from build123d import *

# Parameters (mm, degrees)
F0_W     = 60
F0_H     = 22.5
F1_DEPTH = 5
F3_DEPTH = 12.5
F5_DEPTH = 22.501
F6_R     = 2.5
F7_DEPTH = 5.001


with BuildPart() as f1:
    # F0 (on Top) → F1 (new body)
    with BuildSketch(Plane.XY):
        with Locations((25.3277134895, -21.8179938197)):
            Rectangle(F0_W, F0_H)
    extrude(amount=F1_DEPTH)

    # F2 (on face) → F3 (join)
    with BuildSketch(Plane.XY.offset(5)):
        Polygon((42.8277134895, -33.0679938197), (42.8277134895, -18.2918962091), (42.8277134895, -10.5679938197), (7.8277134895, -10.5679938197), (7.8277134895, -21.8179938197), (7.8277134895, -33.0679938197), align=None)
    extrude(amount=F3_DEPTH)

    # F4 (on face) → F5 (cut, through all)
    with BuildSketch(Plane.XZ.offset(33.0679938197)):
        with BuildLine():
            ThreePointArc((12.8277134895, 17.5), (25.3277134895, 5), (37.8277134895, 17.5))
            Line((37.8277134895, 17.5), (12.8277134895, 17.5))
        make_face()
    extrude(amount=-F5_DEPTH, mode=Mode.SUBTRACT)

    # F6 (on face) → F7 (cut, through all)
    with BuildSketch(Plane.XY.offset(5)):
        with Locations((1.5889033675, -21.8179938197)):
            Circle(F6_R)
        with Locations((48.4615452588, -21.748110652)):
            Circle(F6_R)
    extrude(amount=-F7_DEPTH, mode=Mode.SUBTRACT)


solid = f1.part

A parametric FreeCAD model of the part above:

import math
import FreeCAD as App
import Part
import Sketcher
Q = App.Units.Quantity

doc = App.newDocument("Part")
body = doc.addObject("PartDesign::Body", "Body")

# Sketch on XY plane
sketch1 = doc.addObject("Sketcher::SketchObject", "Sketch")
body.addObject(sketch1)
sketch1.AttachmentSupport = (doc.XY_Plane, [""])
sketch1.MapMode = "FlatFace"
sketch1.addGeometry(Part.LineSegment(App.Vector(-5, -11, 0), App.Vector(-5, -33, 0)), False)
sketch1.addGeometry(Part.LineSegment(App.Vector(-5, -33, 0), App.Vector(55, -33, 0)), False)
sketch1.addGeometry(Part.LineSegment(App.Vector(55, -33, 0), App.Vector(55, -11, 0)), False)
sketch1.addGeometry(Part.LineSegment(App.Vector(55, -11, 0), App.Vector(-5, -11, 0)), False)
sketch1.addConstraint(Sketcher.Constraint("Coincident", 0, 2, 1, 1))
sketch1.addConstraint(Sketcher.Constraint("Coincident", 1, 2, 2, 1))
sketch1.addConstraint(Sketcher.Constraint("Coincident", 2, 2, 3, 1))
sketch1.addConstraint(Sketcher.Constraint("Coincident", 3, 2, 0, 1))
sketch1.addConstraint(Sketcher.Constraint("Vertical", 0))
sketch1.addConstraint(Sketcher.Constraint("Horizontal", 1))
sketch1.addConstraint(Sketcher.Constraint("Vertical", 2))
sketch1.addConstraint(Sketcher.Constraint("Horizontal", 3))
sketch1.addConstraint(Sketcher.Constraint("DistanceX", 1, 1, 1, 2, Q("60 mm")))
sketch1.addConstraint(Sketcher.Constraint("DistanceY", 0, 2, 0, 1, Q("22.5 mm")))
sketch1.addConstraint(Sketcher.Constraint("DistanceX", 0, 2, -1, 1, Q("4.672287 mm")))
sketch1.addConstraint(Sketcher.Constraint("DistanceY", 0, 2, -1, 1, Q("33.067994 mm")))
pad1 = doc.addObject("PartDesign::Pad", "Pad")
body.addObject(pad1)
pad1.Profile = sketch1
pad1.Length = 5

# Sketch on XY plane
sketch2 = doc.addObject("Sketcher::SketchObject", "Sketch001")
body.addObject(sketch2)
sketch2.AttachmentSupport = (doc.XY_Plane, [""])
sketch2.MapMode = "FlatFace"
sketch2.AttachmentOffset = App.Placement(App.Vector(0, 0, 5), App.Rotation())
sketch2.addGeometry(Part.LineSegment(App.Vector(43, -33, 0), App.Vector(43, -11, 0)), False)
sketch2.addGeometry(Part.LineSegment(App.Vector(43, -11, 0), App.Vector(8, -11, 0)), False)
sketch2.addGeometry(Part.LineSegment(App.Vector(8, -11, 0), App.Vector(8, -33, 0)), False)
sketch2.addGeometry(Part.LineSegment(App.Vector(8, -33, 0), App.Vector(43, -33, 0)), False)
sketch2.addConstraint(Sketcher.Constraint("Coincident", 0, 2, 1, 1))
sketch2.addConstraint(Sketcher.Constraint("Coincident", 1, 2, 2, 1))
sketch2.addConstraint(Sketcher.Constraint("Coincident", 2, 2, 3, 1))
sketch2.addConstraint(Sketcher.Constraint("Coincident", 3, 2, 0, 1))
sketch2.addConstraint(Sketcher.Constraint("Vertical", 0))
sketch2.addConstraint(Sketcher.Constraint("Horizontal", 1))
sketch2.addConstraint(Sketcher.Constraint("Vertical", 2))
sketch2.addConstraint(Sketcher.Constraint("Horizontal", 3))
sketch2.addConstraint(Sketcher.Constraint("DistanceX", 1, 2, 1, 1, Q("35 mm")))
sketch2.addConstraint(Sketcher.Constraint("DistanceY", 0, 1, 0, 2, Q("22.5 mm")))
sketch2.addConstraint(Sketcher.Constraint("DistanceX", -1, 1, 0, 2, Q("42.827713 mm")))
sketch2.addConstraint(Sketcher.Constraint("DistanceY", 0, 2, -1, 1, Q("10.567994 mm")))
pad2 = doc.addObject("PartDesign::Pad", "Pad001")
body.addObject(pad2)
pad2.Profile = sketch2
pad2.Length = 12.5

# Sketch on XZ plane
sketch3 = doc.addObject("Sketcher::SketchObject", "Sketch002")
body.addObject(sketch3)
sketch3.AttachmentSupport = (doc.XZ_Plane, [""])
sketch3.MapMode = "FlatFace"
sketch3.AttachmentOffset = App.Placement(App.Vector(0, 0, 33.067994), App.Rotation())
sketch3.addGeometry(Part.ArcOfCircle(Part.Circle(App.Vector(25, 18, 0), App.Vector(0, 0, 1), 12), math.radians(180), math.radians(360)), False)
sketch3.addGeometry(Part.LineSegment(App.Vector(38, 18, 0), App.Vector(13, 18, 0)), False)
sketch3.addConstraint(Sketcher.Constraint("Coincident", 0, 1, 1, 2))
sketch3.addConstraint(Sketcher.Constraint("Coincident", 1, 1, 0, 2))
sketch3.addConstraint(Sketcher.Constraint("Horizontal", 1))
sketch3.addConstraint(Sketcher.Constraint("Radius", 0, Q("12.5 mm")))
sketch3.addConstraint(Sketcher.Constraint("DistanceY", -1, 1, 0, 3, Q("17.5 mm")))
sketch3.addConstraint(Sketcher.Constraint("DistanceY", -1, 1, 0, 1, Q("17.5 mm")))
sketch3.addConstraint(Sketcher.Constraint("DistanceX", -1, 1, 0, 3, Q("25.327713 mm")))
pocket1 = doc.addObject("PartDesign::Pocket", "Pocket")
body.addObject(pocket1)
pocket1.Profile = sketch3
pocket1.Type = "ThroughAll"

# Sketch on XY plane
sketch4 = doc.addObject("Sketcher::SketchObject", "Sketch003")
body.addObject(sketch4)
sketch4.AttachmentSupport = (doc.XY_Plane, [""])
sketch4.MapMode = "FlatFace"
sketch4.AttachmentOffset = App.Placement(App.Vector(0, 0, 5), App.Rotation())
sketch4.addGeometry(Part.Circle(App.Vector(1.6, -21.8, 0), App.Vector(0, 0, 1), 2.5), False)
sketch4.addGeometry(Part.Circle(App.Vector(48.5, -21.7, 0), App.Vector(0, 0, 1), 2.5), False)
sketch4.addConstraint(Sketcher.Constraint("Equal", 0, 1))
sketch4.addConstraint(Sketcher.Constraint("Diameter", 0, Q("5 mm")))
sketch4.addConstraint(Sketcher.Constraint("DistanceY", 1, 3, -1, 1, Q("21.748111 mm")))
sketch4.addConstraint(Sketcher.Constraint("DistanceX", 0, 3, 1, 3, Q("46.872642 mm")))
sketch4.addConstraint(Sketcher.Constraint("DistanceX", -1, 1, 0, 3, Q("1.588903 mm")))
sketch4.addConstraint(Sketcher.Constraint("DistanceY", 0, 3, -1, 1, Q("21.817994 mm")))
pocket2 = doc.addObject("PartDesign::Pocket", "Pocket001")
body.addObject(pocket2)
pocket2.Profile = sketch4
pocket2.Type = "ThroughAll"

doc.recompute()
